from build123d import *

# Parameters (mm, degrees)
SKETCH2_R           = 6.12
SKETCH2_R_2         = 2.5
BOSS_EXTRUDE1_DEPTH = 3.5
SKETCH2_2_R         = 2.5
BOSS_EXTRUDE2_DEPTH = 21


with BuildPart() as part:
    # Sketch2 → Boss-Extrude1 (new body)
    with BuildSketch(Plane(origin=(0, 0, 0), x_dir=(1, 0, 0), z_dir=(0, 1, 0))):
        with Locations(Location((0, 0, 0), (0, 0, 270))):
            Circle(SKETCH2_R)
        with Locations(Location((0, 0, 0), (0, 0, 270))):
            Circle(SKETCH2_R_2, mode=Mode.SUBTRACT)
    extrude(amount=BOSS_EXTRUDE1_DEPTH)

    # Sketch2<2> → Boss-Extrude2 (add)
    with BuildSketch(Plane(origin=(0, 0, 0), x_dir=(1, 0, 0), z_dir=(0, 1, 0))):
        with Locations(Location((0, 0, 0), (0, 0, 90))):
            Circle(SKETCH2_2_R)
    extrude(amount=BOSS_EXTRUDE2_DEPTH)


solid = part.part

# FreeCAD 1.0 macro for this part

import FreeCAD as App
import Part
import Sketcher
from FreeCAD import Vector

doc = App.newDocument("Part")
params = doc.addObject("Spreadsheet::Sheet", "Params")
for row, (alias, value) in enumerate([
    ("sketch1_diameter", "5 mm"),
    ("sketch1_diameter2", "12.24 mm"),
    ("pad1_length", "3.5 mm"),
    ("sketch2_diameter", "5 mm"),
    ("pad2_length", "21 mm"),
], start=1):
    params.set(f"A{row}", alias)
    params.set(f"B{row}", "=" + value)
    params.setAlias(f"B{row}", alias)

body = doc.addObject("PartDesign::Body", "Body")

# Sketch on XZ plane
sketch1 = doc.addObject("Sketcher::SketchObject", "Sketch")
body.addObject(sketch1)
sketch1.AttachmentSupport = (doc.XZ_Plane, [""])
sketch1.MapMode = "FlatFace"
sketch1.addGeometry([
    Part.Circle(Vector(0, 0, 0), Vector(0, 0, 1), 6.1),
    Part.Circle(Vector(0, 0, 0), Vector(0, 0, 1), 2.5),
], False)
sketch1.addConstraint([
    Sketcher.Constraint("Coincident", 0, 3, -1, 1),
    Sketcher.Constraint("Coincident", 1, 3, -1, 1),
    Sketcher.Constraint("Diameter", 1, 5.0),
    Sketcher.Constraint("Diameter", 0, 12.24),
])
sketch1.setExpression("Constraints[2]", "Params.sketch1_diameter")
sketch1.setExpression("Constraints[3]", "Params.sketch1_diameter2")
pad1 = doc.addObject("PartDesign::Pad", "Pad")
body.addObject(pad1)
pad1.Profile = sketch1
pad1.setExpression("Length", "Params.pad1_length")
pad1.Reversed = True

# Sketch on XZ plane
sketch2 = doc.addObject("Sketcher::SketchObject", "Sketch001")
body.addObject(sketch2)
sketch2.AttachmentSupport = (doc.XZ_Plane, [""])
sketch2.MapMode = "FlatFace"
sketch2.addGeometry(Part.Circle(Vector(0, 0, 0), Vector(0, 0, 1), 2.5), False)
sketch2.addConstraint([
    Sketcher.Constraint("Coincident", 0, 3, -1, 1),
    Sketcher.Constraint("Diameter", 0, 5.0),
])
sketch2.setExpression("Constraints[1]", "Params.sketch2_diameter")
pad2 = doc.addObject("PartDesign::Pad", "Pad001")
body.addObject(pad2)
pad2.Profile = sketch2
pad2.setExpression("Length", "Params.pad2_length")
pad2.Reversed = True

doc.recompute()
